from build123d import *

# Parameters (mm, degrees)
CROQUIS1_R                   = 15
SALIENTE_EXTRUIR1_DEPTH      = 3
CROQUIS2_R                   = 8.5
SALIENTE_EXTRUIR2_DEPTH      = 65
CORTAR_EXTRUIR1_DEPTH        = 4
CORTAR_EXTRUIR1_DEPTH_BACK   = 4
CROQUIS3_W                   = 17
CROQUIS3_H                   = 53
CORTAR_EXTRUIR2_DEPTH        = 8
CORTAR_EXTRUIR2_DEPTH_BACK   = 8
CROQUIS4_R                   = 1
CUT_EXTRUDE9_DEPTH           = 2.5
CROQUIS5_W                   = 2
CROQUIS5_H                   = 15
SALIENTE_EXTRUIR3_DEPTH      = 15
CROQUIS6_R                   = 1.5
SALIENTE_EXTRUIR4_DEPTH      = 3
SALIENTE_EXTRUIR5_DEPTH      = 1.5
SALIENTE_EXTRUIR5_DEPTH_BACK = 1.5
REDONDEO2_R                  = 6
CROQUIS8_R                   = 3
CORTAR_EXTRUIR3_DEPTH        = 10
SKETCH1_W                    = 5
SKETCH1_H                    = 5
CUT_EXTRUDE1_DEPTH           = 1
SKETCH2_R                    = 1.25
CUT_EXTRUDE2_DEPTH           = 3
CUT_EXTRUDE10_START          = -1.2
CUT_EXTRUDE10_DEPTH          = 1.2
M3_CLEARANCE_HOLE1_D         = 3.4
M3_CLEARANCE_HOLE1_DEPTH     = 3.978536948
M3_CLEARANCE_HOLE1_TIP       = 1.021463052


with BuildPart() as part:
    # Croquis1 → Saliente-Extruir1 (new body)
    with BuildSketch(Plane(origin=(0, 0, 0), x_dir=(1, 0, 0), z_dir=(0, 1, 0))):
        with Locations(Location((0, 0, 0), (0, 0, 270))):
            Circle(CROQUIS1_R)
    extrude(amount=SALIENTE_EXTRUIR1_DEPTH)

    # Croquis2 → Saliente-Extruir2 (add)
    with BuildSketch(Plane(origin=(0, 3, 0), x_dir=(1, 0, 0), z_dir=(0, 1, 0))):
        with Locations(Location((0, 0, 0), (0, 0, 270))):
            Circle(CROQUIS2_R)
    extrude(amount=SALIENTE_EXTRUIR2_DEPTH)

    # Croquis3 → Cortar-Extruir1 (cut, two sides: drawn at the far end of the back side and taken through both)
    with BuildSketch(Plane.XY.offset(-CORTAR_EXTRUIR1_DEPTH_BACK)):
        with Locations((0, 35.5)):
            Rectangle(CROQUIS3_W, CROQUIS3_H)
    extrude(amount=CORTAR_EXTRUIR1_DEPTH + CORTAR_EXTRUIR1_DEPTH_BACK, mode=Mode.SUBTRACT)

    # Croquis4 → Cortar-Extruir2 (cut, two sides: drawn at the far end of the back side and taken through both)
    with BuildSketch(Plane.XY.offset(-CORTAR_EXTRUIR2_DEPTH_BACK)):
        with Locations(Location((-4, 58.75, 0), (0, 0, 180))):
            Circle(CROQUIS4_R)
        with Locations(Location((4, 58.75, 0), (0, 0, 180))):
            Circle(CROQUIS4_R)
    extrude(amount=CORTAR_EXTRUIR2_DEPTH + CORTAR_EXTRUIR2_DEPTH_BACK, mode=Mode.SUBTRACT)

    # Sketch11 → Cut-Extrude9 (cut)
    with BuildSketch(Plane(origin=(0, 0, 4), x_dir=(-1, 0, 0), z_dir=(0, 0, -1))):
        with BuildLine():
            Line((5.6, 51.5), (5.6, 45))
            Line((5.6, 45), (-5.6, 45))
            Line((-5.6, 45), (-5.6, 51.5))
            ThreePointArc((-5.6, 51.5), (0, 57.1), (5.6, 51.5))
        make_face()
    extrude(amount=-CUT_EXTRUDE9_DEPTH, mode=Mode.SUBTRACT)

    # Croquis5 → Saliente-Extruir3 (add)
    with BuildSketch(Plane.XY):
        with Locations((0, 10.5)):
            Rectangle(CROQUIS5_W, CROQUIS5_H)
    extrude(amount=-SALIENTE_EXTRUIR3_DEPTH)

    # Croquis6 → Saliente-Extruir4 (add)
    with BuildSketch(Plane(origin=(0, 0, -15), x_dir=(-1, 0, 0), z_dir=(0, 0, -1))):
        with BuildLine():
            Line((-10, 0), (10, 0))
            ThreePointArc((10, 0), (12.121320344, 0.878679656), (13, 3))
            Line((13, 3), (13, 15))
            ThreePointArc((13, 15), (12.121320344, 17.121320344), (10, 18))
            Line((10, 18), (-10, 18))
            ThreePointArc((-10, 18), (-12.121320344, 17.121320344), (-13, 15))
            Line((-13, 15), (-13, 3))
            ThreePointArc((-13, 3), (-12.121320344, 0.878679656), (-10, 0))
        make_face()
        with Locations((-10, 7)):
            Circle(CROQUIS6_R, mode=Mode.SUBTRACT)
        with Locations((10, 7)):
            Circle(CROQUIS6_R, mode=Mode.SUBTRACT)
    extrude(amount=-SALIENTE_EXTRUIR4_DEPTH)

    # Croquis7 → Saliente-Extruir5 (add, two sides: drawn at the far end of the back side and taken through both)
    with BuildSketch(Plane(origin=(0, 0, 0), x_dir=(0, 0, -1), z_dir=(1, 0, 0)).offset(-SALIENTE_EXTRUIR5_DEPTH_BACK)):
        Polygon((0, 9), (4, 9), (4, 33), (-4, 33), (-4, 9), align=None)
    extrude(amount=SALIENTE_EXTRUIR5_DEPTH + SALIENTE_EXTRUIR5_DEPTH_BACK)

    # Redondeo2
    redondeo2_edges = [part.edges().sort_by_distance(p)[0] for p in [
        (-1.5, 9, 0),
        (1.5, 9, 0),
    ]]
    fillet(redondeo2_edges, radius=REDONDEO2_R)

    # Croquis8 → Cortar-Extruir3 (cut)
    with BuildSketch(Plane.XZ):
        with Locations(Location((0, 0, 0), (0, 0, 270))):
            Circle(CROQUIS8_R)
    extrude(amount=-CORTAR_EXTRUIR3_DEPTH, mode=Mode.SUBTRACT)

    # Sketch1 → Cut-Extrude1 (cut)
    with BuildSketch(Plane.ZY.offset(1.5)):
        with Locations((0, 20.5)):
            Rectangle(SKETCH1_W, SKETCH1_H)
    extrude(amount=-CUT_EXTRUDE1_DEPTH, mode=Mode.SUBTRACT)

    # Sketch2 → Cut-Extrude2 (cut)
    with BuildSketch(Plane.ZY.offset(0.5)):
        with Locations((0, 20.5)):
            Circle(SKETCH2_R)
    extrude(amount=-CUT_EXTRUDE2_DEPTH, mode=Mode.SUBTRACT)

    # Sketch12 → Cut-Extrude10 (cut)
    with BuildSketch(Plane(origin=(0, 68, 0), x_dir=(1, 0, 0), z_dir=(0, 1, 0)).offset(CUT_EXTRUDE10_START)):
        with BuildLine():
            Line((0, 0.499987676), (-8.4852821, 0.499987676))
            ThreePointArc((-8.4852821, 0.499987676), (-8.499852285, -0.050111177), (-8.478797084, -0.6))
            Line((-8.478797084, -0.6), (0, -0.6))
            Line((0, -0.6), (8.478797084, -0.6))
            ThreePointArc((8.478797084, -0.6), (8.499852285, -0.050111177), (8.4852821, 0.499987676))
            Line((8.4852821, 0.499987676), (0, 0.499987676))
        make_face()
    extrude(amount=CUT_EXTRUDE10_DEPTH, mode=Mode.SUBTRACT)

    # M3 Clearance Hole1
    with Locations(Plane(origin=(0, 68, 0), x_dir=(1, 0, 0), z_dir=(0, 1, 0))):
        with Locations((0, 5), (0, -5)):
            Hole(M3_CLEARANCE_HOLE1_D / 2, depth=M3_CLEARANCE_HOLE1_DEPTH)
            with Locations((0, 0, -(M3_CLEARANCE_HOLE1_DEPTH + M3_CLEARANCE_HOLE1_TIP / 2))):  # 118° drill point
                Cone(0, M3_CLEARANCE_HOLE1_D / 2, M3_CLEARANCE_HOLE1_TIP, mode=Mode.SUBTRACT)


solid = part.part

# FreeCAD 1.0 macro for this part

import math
import FreeCAD as App
import Part
import Sketcher


def edges_at(feature, points):
    """Names of the edges that pass closest to the given points."""
    edges = feature.Shape.Edges
    near = lambda p: min(range(len(edges)), key=lambda i: edges[i].distToShape(Part.Vertex(*p))[0])
    return sorted({f"Edge{near(p) + 1}" for p in points})

doc = App.newDocument("Part")
params = doc.addObject("Spreadsheet::Sheet", "Params")
for row, (alias, value) in enumerate([
    ("sketch1_diameter", "30 mm"),
    ("pad1_length", "3 mm"),
    ("sketch2_diameter", "17 mm"),
    ("pad2_length", "65 mm"),
    ("sketch3_width", "17 mm"),
    ("sketch3_height", "53 mm"),
    ("pocket1_length", "4 mm"),
    ("pocket1_length2", "4 mm"),
    ("sketch4_diameter", "2 mm"),
    ("sketch5_radius", "5.6 mm"),
    ("sketch5_height", "6.5 mm"),
    ("pocket3_length", "2.5 mm"),
    ("sketch6_width", "2 mm"),
    ("sketch6_height", "15 mm"),
    ("pad3_length", "15 mm"),
    ("sketch7_diameter", "3 mm"),
    ("sketch7_radius", "3 mm"),
    ("sketch7_width", "20 mm"),
    ("sketch7_height", "12 mm"),
    ("pad4_length", "3 mm"),
    ("sketch8_width", "24 mm"),
    ("sketch8_height", "8 mm"),
    ("pad5_length", "1.5 mm"),
    ("pad5_length2", "1.5 mm"),
    ("fillet_radius", "6 mm"),
    ("sketch9_diameter", "6 mm"),
    ("pocket4_length", "10 mm"),
    ("sketch10_width", "5 mm"),
    ("pocket5_length", "1 mm"),
    ("sketch11_diameter", "2.5 mm"),
    ("pocket6_length", "3 mm"),
    ("sketch12_radius", "8.5 mm"),
    ("pocket7_length", "1.2 mm"),
    ("sketch13_diameter", "3.4 mm"),
    ("hole_diameter", "3.4 mm"),
    ("hole_depth", "3.978537 mm"),
], start=1):
    params.set(f"A{row}", alias)
    params.set(f"B{row}", "=" + value)
    params.setAlias(f"B{row}", alias)

body = doc.addObject("PartDesign::Body", "Body")

# Sketch on XZ plane
sketch1 = body.newObject("Sketcher::SketchObject", "Sketch")
sketch1.AttachmentSupport = (doc.getObject("XZ_Plane"), [""])
sketch1.MapMode = "FlatFace"
sketch1.addGeometry(Part.Circle(App.Vector(0, 0, 0), App.Vector(0, 0, 1), 15), False)
sketch1.addConstraint(Sketcher.Constraint("Coincident", 0, 3, -1, 1))
sketch1.addConstraint(Sketcher.Constraint("Diameter", 0, 30.0))
sketch1.setExpression("Constraints[1]", "Params.sketch1_diameter")
pad1 = body.newObject("PartDesign::Pad", "Pad")
pad1.Profile = sketch1
pad1.setExpression("Length", "Params.pad1_length")
pad1.Reversed = True

# Sketch on XZ plane
sketch2 = body.newObject("Sketcher::SketchObject", "Sketch001")
sketch2.AttachmentSupport = (doc.getObject("XZ_Plane"), [""])
sketch2.MapMode = "FlatFace"
sketch2.AttachmentOffset = App.Placement(App.Vector(0, 0, -3), App.Rotation())
sketch2.addGeometry(Part.Circle(App.Vector(0, 0, 0), App.Vector(0, 0, 1), 8), False)
sketch2.addConstraint(Sketcher.Constraint("Coincident", 0, 3, -1, 1))
sketch2.addConstraint(Sketcher.Constraint("Diameter", 0, 17.0))
sketch2.setExpression("Constraints[1]", "Params.sketch2_diameter")
pad2 = body.newObject("PartDesign::Pad", "Pad001")
pad2.Profile = sketch2
pad2.setExpression("Length", "Params.pad2_length")
pad2.Reversed = True

# Sketch on XY plane
sketch3 = body.newObject("Sketcher::SketchObject", "Sketch002")
sketch3.AttachmentSupport = (doc.getObject("XY_Plane"), [""])
sketch3.MapMode = "FlatFace"
sketch3.addGeometry(Part.LineSegment(App.Vector(-8, 62, 0), App.Vector(-8, 9, 0)), False)
sketch3.addGeometry(Part.LineSegment(App.Vector(-8, 9, 0), App.Vector(8, 9, 0)), False)
sketch3.addGeometry(Part.LineSegment(App.Vector(8, 9, 0), App.Vector(8, 62, 0)), False)
sketch3.addGeometry(Part.LineSegment(App.Vector(8, 62, 0), App.Vector(-8, 62, 0)), False)
sketch3.addConstraint(Sketcher.Constraint("Coincident", 0, 2, 1, 1))
sketch3.addConstraint(Sketcher.Constraint("Coincident", 1, 2, 2, 1))
sketch3.addConstraint(Sketcher.Constraint("Coincident", 2, 2, 3, 1))
sketch3.addConstraint(Sketcher.Constraint("Coincident", 3, 2, 0, 1))
sketch3.addConstraint(Sketcher.Constraint("Vertical", 0))
sketch3.addConstraint(Sketcher.Constraint("Horizontal", 1))
sketch3.addConstraint(Sketcher.Constraint("Vertical", 2))
sketch3.addConstraint(Sketcher.Constraint("Horizontal", 3))
sketch3.addConstraint(Sketcher.Constraint("DistanceX", 1, 1, 1, 2, 17.0))
sketch3.addConstraint(Sketcher.Constraint("DistanceY", 0, 2, 0, 1, 53.0))
sketch3.addConstraint(Sketcher.Constraint("DistanceY", -1, 1, 0, 2, 9.0))
sketch3.addConstraint(Sketcher.Constraint("DistanceX", 0, 2, -1, 1, 8.5))
sketch3.setExpression("Constraints[8]", "Params.sketch3_width")
sketch3.setExpression("Constraints[9]", "Params.sketch3_height")
pocket1 = body.newObject("PartDesign::Pocket", "Pocket")
pocket1.Profile = sketch3
pocket1.Type = "TwoLengths"
pocket1.setExpression("Length", "Params.pocket1_length")
pocket1.setExpression("Length2", "Params.pocket1_length2")
pocket1.Reversed = True

# Sketch on XY plane
sketch4 = body.newObject("Sketcher::SketchObject", "Sketch003")
sketch4.AttachmentSupport = (doc.getObject("XY_Plane"), [""])
sketch4.MapMode = "FlatFace"
sketch4.addGeometry(Part.Circle(App.Vector(-4, 58.8, 0), App.Vector(0, 0, 1), 1), False)
sketch4.addGeometry(Part.Circle(App.Vector(4, 58.8, 0), App.Vector(0, 0, 1), 1), False)
sketch4.addConstraint(Sketcher.Constraint("Equal", 0, 1))
sketch4.addConstraint(Sketcher.Constraint("Symmetric", 0, 3, 1, 3, -2))
sketch4.addConstraint(Sketcher.Constraint("Diameter", 0, 2.0))
sketch4.addConstraint(Sketcher.Constraint("DistanceX", 0, 3, -1, 1, 4.0))
sketch4.addConstraint(Sketcher.Constraint("DistanceY", -1, 1, 0, 3, 58.75))
sketch4.setExpression("Constraints[2]", "Params.sketch4_diameter")
pocket2 = body.newObject("PartDesign::Pocket", "Pocket001")
pocket2.Profile = sketch4
pocket2.Type = "ThroughAll"
pocket2.Midplane = True

# Sketch on XY plane
sketch5 = body.newObject("Sketcher::SketchObject", "Sketch004")
sketch5.AttachmentSupport = (doc.getObject("XY_Plane"), [""])
sketch5.MapMode = "FlatFace"
sketch5.AttachmentOffset = App.Placement(App.Vector(0, 0, 4), App.Rotation())
sketch5.addGeometry(Part.LineSegment(App.Vector(-6, 45, 0), App.Vector(-6, 52, 0)), False)
sketch5.addGeometry(Part.ArcOfCircle(Part.Circle(App.Vector(0, 52, 0), App.Vector(0, 0, 1), 6), math.radians(0), math.radians(180)), False)
sketch5.addGeometry(Part.LineSegment(App.Vector(6, 52, 0), App.Vector(6, 45, 0)), False)
sketch5.addGeometry(Part.LineSegment(App.Vector(6, 45, 0), App.Vector(-6, 45, 0)), False)
sketch5.addConstraint(Sketcher.Constraint("Tangent", 0, 2, 1, 2))
sketch5.addConstraint(Sketcher.Constraint("Tangent", 1, 1, 2, 1))
sketch5.addConstraint(Sketcher.Constraint("Coincident", 2, 2, 3, 1))
sketch5.addConstraint(Sketcher.Constraint("Coincident", 3, 2, 0, 1))
sketch5.addConstraint(Sketcher.Constraint("Vertical", 0))
sketch5.addConstraint(Sketcher.Constraint("Vertical", 2))
sketch5.addConstraint(Sketcher.Constraint("Horizontal", 3))
sketch5.addConstraint(Sketcher.Constraint("PointOnObject", 1, 3, -2))
sketch5.addConstraint(Sketcher.Constraint("Radius", 1, 5.6))
sketch5.addConstraint(Sketcher.Constraint("DistanceY", 0, 1, 0, 2, 6.5))
sketch5.addConstraint(Sketcher.Constraint("DistanceY", -1, 1, 2, 2, 45.0))
sketch5.setExpression("Constraints[8]", "Params.sketch5_radius")
sketch5.setExpression("Constraints[9]", "Params.sketch5_height")
pocket3 = body.newObject("PartDesign::Pocket", "Pocket002")
pocket3.Profile = sketch5
pocket3.setExpression("Length", "Params.pocket3_length")
pocket3.Reversed = True

# Sketch on XY plane
sketch6 = body.newObject("Sketcher::SketchObject", "Sketch005")
sketch6.AttachmentSupport = (doc.getObject("XY_Plane"), [""])
sketch6.MapMode = "FlatFace"
sketch6.addGeometry(Part.LineSegment(App.Vector(-1, 18, 0), App.Vector(-1, 3, 0)), False)
sketch6.addGeometry(Part.LineSegment(App.Vector(-1, 3, 0), App.Vector(1, 3, 0)), False)
sketch6.addGeometry(Part.LineSegment(App.Vector(1, 3, 0), App.Vector(1, 18, 0)), False)
sketch6.addGeometry(Part.LineSegment(App.Vector(1, 18, 0), App.Vector(-1, 18, 0)), False)
sketch6.addConstraint(Sketcher.Constraint("Coincident", 0, 2, 1, 1))
sketch6.addConstraint(Sketcher.Constraint("Coincident", 1, 2, 2, 1))
sketch6.addConstraint(Sketcher.Constraint("Coincident", 2, 2, 3, 1))
sketch6.addConstraint(Sketcher.Constraint("Coincident", 3, 2, 0, 1))
sketch6.addConstraint(Sketcher.Constraint("Vertical", 0))
sketch6.addConstraint(Sketcher.Constraint("Horizontal", 1))
sketch6.addConstraint(Sketcher.Constraint("Vertical", 2))
sketch6.addConstraint(Sketcher.Constraint("Horizontal", 3))
sketch6.addConstraint(Sketcher.Constraint("DistanceX", 1, 1, 1, 2, 2.0))
sketch6.addConstraint(Sketcher.Constraint("DistanceY", 0, 2, 0, 1, 15.0))
sketch6.addConstraint(Sketcher.Constraint("DistanceX", 0, 2, -1, 1, 1.0))
sketch6.addConstraint(Sketcher.Constraint("DistanceY", -1, 1, 0, 2, 3.0))
sketch6.setExpression("Constraints[8]", "Params.sketch6_width")
sketch6.setExpression("Constraints[9]", "Params.sketch6_height")
pad3 = body.newObject("PartDesign::Pad", "Pad002")
pad3.Profile = sketch6
pad3.setExpression("Length", "Params.pad3_length")
pad3.Reversed = True

# Sketch on XY plane
sketch7 = body.newObject("Sketcher::SketchObject", "Sketch006")
sketch7.AttachmentSupport = (doc.getObject("XY_Plane"), [""])
sketch7.MapMode = "FlatFace"
sketch7.AttachmentOffset = App.Placement(App.Vector(0, 0, -15), App.Rotation())
sketch7.addGeometry(Part.LineSegment(App.Vector(10, 0, 0), App.Vector(-10, 0, 0)), False)
sketch7.addGeometry(Part.ArcOfCircle(Part.Circle(App.Vector(-10, 3, 0), App.Vector(0, 0, 1), 3), math.radians(180), math.radians(270)), False)
sketch7.addGeometry(Part.LineSegment(App.Vector(-13, 3, 0), App.Vector(-13, 15, 0)), False)
sketch7.addGeometry(Part.ArcOfCircle(Part.Circle(App.Vector(-10, 15, 0), App.Vector(0, 0, 1), 3), math.radians(90), math.radians(180)), False)
sketch7.addGeometry(Part.LineSegment(App.Vector(-10, 18, 0), App.Vector(10, 18, 0)), False)
sketch7.addGeometry(Part.ArcOfCircle(Part.Circle(App.Vector(10, 15, 0), App.Vector(0, 0, 1), 3), math.radians(0), math.radians(90)), False)
sketch7.addGeometry(Part.LineSegment(App.Vector(13, 15, 0), App.Vector(13, 3, 0)), False)
sketch7.addGeometry(Part.ArcOfCircle(Part.Circle(App.Vector(10, 3, 0), App.Vector(0, 0, 1), 3), math.radians(-90), math.radians(0)), False)
sketch7.addGeometry(Part.Circle(App.Vector(10, 7, 0), App.Vector(0, 0, 1), 1.5), False)
sketch7.addGeometry(Part.Circle(App.Vector(-10, 7, 0), App.Vector(0, 0, 1), 1.5), False)
sketch7.addConstraint(Sketcher.Constraint("Tangent", 0, 2, 1, 2))
sketch7.addConstraint(Sketcher.Constraint("Tangent", 1, 1, 2, 1))
sketch7.addConstraint(Sketcher.Constraint("Tangent", 2, 2, 3, 2))
sketch7.addConstraint(Sketcher.Constraint("Tangent", 3, 1, 4, 1))
sketch7.addConstraint(Sketcher.Constraint("Tangent", 4, 2, 5, 2))
sketch7.addConstraint(Sketcher.Constraint("Tangent", 5, 1, 6, 1))
sketch7.addConstraint(Sketcher.Constraint("Tangent", 6, 2, 7, 2))
sketch7.addConstraint(Sketcher.Constraint("Tangent", 7, 1, 0, 1))
sketch7.addConstraint(Sketcher.Constraint("Horizontal", 0))
sketch7.addConstraint(Sketcher.Constraint("Vertical", 2))
sketch7.addConstraint(Sketcher.Constraint("Horizontal", 4))
sketch7.addConstraint(Sketcher.Constraint("Vertical", 6))
sketch7.addConstraint(Sketcher.Constraint("Equal", 1, 3))
sketch7.addConstraint(Sketcher.Constraint("Equal", 3, 5))
sketch7.addConstraint(Sketcher.Constraint("Equal", 5, 7))
sketch7.addConstraint(Sketcher.Constraint("Equal", 8, 9))
sketch7.addConstraint(Sketcher.Constraint("Symmetric", 0, 2, 7, 1, -1, 1))
sketch7.addConstraint(Sketcher.Constraint("Symmetric", 8, 3, 9, 3, -2))
sketch7.addConstraint(Sketcher.Constraint("Vertical", 7, 3, 8, 3))
sketch7.addConstraint(Sketcher.Constraint("Diameter", 8, 3.0))
sketch7.addConstraint(Sketcher.Constraint("Radius", 1, 3.0))
sketch7.addConstraint(Sketcher.Constraint("DistanceX", 0, 2, 0, 1, 20.0))
sketch7.addConstraint(Sketcher.Constraint("DistanceY", 2, 1, 2, 2, 12.0))
sketch7.addConstraint(Sketcher.Constraint("DistanceY", -1, 1, 8, 3, 7.0))
sketch7.setExpression("Constraints[19]", "Params.sketch7_diameter")
sketch7.setExpression("Constraints[20]", "Params.sketch7_radius")
sketch7.setExpression("Constraints[21]", "Params.sketch7_width")
sketch7.setExpression("Constraints[22]", "Params.sketch7_height")
pad4 = body.newObject("PartDesign::Pad", "Pad003")
pad4.Profile = sketch7
pad4.setExpression("Length", "Params.pad4_length")

# Sketch on YZ plane
sketch8 = body.newObject("Sketcher::SketchObject", "Sketch007")
sketch8.AttachmentSupport = (doc.getObject("YZ_Plane"), [""])
sketch8.MapMode = "FlatFace"
sketch8.addGeometry(Part.LineSegment(App.Vector(9, -4, 0), App.Vector(33, -4, 0)), False)
sketch8.addGeometry(Part.LineSegment(App.Vector(33, -4, 0), App.Vector(33, 4, 0)), False)
sketch8.addGeometry(Part.LineSegment(App.Vector(33, 4, 0), App.Vector(9, 4, 0)), False)
sketch8.addGeometry(Part.LineSegment(App.Vector(9, 4, 0), App.Vector(9, -4, 0)), False)
sketch8.addConstraint(Sketcher.Constraint("Coincident", 0, 2, 1, 1))
sketch8.addConstraint(Sketcher.Constraint("Coincident", 1, 2, 2, 1))
sketch8.addConstraint(Sketcher.Constraint("Coincident", 2, 2, 3, 1))
sketch8.addConstraint(Sketcher.Constraint("Coincident", 3, 2, 0, 1))
sketch8.addConstraint(Sketcher.Constraint("Horizontal", 0))
sketch8.addConstraint(Sketcher.Constraint("Vertical", 1))
sketch8.addConstraint(Sketcher.Constraint("Horizontal", 2))
sketch8.addConstraint(Sketcher.Constraint("Vertical", 3))
sketch8.addConstraint(Sketcher.Constraint("DistanceX", 0, 1, 0, 2, 24.0))
sketch8.addConstraint(Sketcher.Constraint("DistanceY", 1, 1, 1, 2, 8.0))
sketch8.addConstraint(Sketcher.Constraint("DistanceX", -1, 1, 0, 2, 33.0))
sketch8.addConstraint(Sketcher.Constraint("DistanceY", 0, 2, -1, 1, 4.0))
sketch8.setExpression("Constraints[8]", "Params.sketch8_width")
sketch8.setExpression("Constraints[9]", "Params.sketch8_height")
pad5 = body.newObject("PartDesign::Pad", "Pad004")
pad5.Profile = sketch8
pad5.Type = "TwoLengths"
pad5.setExpression("Length", "Params.pad5_length")
pad5.setExpression("Length2", "Params.pad5_length2")
doc.recompute()

fillet = body.newObject("PartDesign::Fillet", "Fillet")
fillet.Base = (pad5, edges_at(pad5, [(-1.5, 9, 0), (1.5, 9, 0)]))
fillet.setExpression("Radius", "Params.fillet_radius")

# Sketch on XZ plane
sketch9 = body.newObject("Sketcher::SketchObject", "Sketch008")
sketch9.AttachmentSupport = (doc.getObject("XZ_Plane"), [""])
sketch9.MapMode = "FlatFace"
sketch9.addGeometry(Part.Circle(App.Vector(0, 0, 0), App.Vector(0, 0, 1), 3), False)
sketch9.addConstraint(Sketcher.Constraint("Coincident", 0, 3, -1, 1))
sketch9.addConstraint(Sketcher.Constraint("Diameter", 0, 6.0))
sketch9.setExpression("Constraints[1]", "Params.sketch9_diameter")
pocket4 = body.newObject("PartDesign::Pocket", "Pocket003")
pocket4.Profile = sketch9
pocket4.setExpression("Length", "Params.pocket4_length")

# Sketch on YZ plane
sketch10 = body.newObject("Sketcher::SketchObject", "Sketch009")
sketch10.AttachmentSupport = (doc.getObject("YZ_Plane"), [""])
sketch10.MapMode = "FlatFace"
sketch10.AttachmentOffset = App.Placement(App.Vector(0, 0, -1.5), App.Rotation())
sketch10.addGeometry(Part.LineSegment(App.Vector(23, -2, 0), App.Vector(18, -2, 0)), False)
sketch10.addGeometry(Part.LineSegment(App.Vector(18, -2, 0), App.Vector(18, 2, 0)), False)
sketch10.addGeometry(Part.LineSegment(App.Vector(18, 2, 0), App.Vector(23, 2, 0)), False)
sketch10.addGeometry(Part.LineSegment(App.Vector(23, 2, 0), App.Vector(23, -2, 0)), False)
sketch10.addConstraint(Sketcher.Constraint("Coincident", 0, 2, 1, 1))
sketch10.addConstraint(Sketcher.Constraint("Coincident", 1, 2, 2, 1))
sketch10.addConstraint(Sketcher.Constraint("Coincident", 2, 2, 3, 1))
sketch10.addConstraint(Sketcher.Constraint("Coincident", 3, 2, 0, 1))
sketch10.addConstraint(Sketcher.Constraint("Horizontal", 0))
sketch10.addConstraint(Sketcher.Constraint("Vertical", 1))
sketch10.addConstraint(Sketcher.Constraint("Horizontal", 2))
sketch10.addConstraint(Sketcher.Constraint("Vertical", 3))
sketch10.addConstraint(Sketcher.Constraint("Equal", 2, 1))
sketch10.addConstraint(Sketcher.Constraint("DistanceX", 0, 2, 0, 1, 5.0))
sketch10.addConstraint(Sketcher.Constraint("DistanceX", -1, 1, 0, 2, 18.0))
sketch10.addConstraint(Sketcher.Constraint("DistanceY", 0, 2, -1, 1, 2.5))
sketch10.setExpression("Constraints[9]", "Params.sketch10_width")
pocket5 = body.newObject("PartDesign::Pocket", "Pocket004")
pocket5.Profile = sketch10
pocket5.setExpression("Length", "Params.pocket5_length")
pocket5.Reversed = True

# Sketch on YZ plane
sketch11 = body.newObject("Sketcher::SketchObject", "Sketch010")
sketch11.AttachmentSupport = (doc.getObject("YZ_Plane"), [""])
sketch11.MapMode = "FlatFace"
sketch11.AttachmentOffset = App.Placement(App.Vector(0, 0, -0.5), App.Rotation())
sketch11.addGeometry(Part.Circle(App.Vector(20.5, 0, 0), App.Vector(0, 0, 1), 1.2), False)
sketch11.addConstraint(Sketcher.Constraint("PointOnObject", 0, 3, -1))
sketch11.addConstraint(Sketcher.Constraint("Diameter", 0, 2.5))
sketch11.addConstraint(Sketcher.Constraint("DistanceX", -1, 1, 0, 3, 20.5))
sketch11.setExpression("Constraints[1]", "Params.sketch11_diameter")
pocket6 = body.newObject("PartDesign::Pocket", "Pocket005")
pocket6.Profile = sketch11
pocket6.setExpression("Length", "Params.pocket6_length")
pocket6.Reversed = True

# Sketch on XZ plane
sketch12 = body.newObject("Sketcher::SketchObject", "Sketch011")
sketch12.AttachmentSupport = (doc.getObject("XZ_Plane"), [""])
sketch12.MapMode = "FlatFace"
sketch12.AttachmentOffset = App.Placement(App.Vector(0, 0, -66.8), App.Rotation())
sketch12.addGeometry(Part.ArcOfCircle(Part.Circle(App.Vector(0, 0, 0), App.Vector(0, 0, 1), 8.5), math.radians(175.95), math.radians(183.37)), False)
sketch12.addGeometry(Part.LineSegment(App.Vector(-8.5, 0.6, 0), App.Vector(8.5, 0.6, 0)), False)
sketch12.addGeometry(Part.ArcOfCircle(Part.Circle(App.Vector(0, 0, 0), App.Vector(0, 0, 1), 8.5), math.radians(-3.37), math.radians(4.05)), False)
sketch12.addGeometry(Part.LineSegment(App.Vector(8.5, -0.5, 0), App.Vector(-8.5, -0.5, 0)), False)
sketch12.addConstraint(Sketcher.Constraint("Coincident", 0, 1, 1, 1))
sketch12.addConstraint(Sketcher.Constraint("Coincident", 1, 2, 2, 2))
sketch12.addConstraint(Sketcher.Constraint("Coincident", 2, 1, 3, 1))
sketch12.addConstraint(Sketcher.Constraint("Coincident", 3, 2, 0, 2))
sketch12.addConstraint(Sketcher.Constraint("Horizontal", 1))
sketch12.addConstraint(Sketcher.Constraint("Horizontal", 3))
sketch12.addConstraint(Sketcher.Constraint("Coincident", 0, 3, -1, 1))
sketch12.addConstraint(Sketcher.Constraint("Coincident", 2, 3, -1, 1))
sketch12.addConstraint(Sketcher.Constraint("Equal", 0, 2))
sketch12.addConstraint(Sketcher.Constraint("Radius", 0, 8.5))
sketch12.addConstraint(Sketcher.Constraint("DistanceY", -1, 1, 0, 1, 0.6))
sketch12.addConstraint(Sketcher.Constraint("DistanceX", 3, 2, 3, 1, 16.970564))
sketch12.setExpression("Constraints[9]", "Params.sketch12_radius")
pocket7 = body.newObject("PartDesign::Pocket", "Pocket006")
pocket7.Profile = sketch12
pocket7.setExpression("Length", "Params.pocket7_length")

# Sketch on XZ plane
sketch13 = body.newObject("Sketcher::SketchObject", "Sketch012")
sketch13.AttachmentSupport = (doc.getObject("XZ_Plane"), [""])
sketch13.MapMode = "FlatFace"
sketch13.AttachmentOffset = App.Placement(App.Vector(0, 0, -68), App.Rotation())
sketch13.addGeometry(Part.Circle(App.Vector(0, -5, 0), App.Vector(0, 0, 1), 1.7), False)
sketch13.addGeometry(Part.Circle(App.Vector(0, 5, 0), App.Vector(0, 0, 1), 1.7), False)
sketch13.addConstraint(Sketcher.Constraint("Equal", 0, 1))
sketch13.addConstraint(Sketcher.Constraint("Symmetric", 0, 3, 1, 3, -1, 1))
sketch13.addConstraint(Sketcher.Constraint("PointOnObject", 0, 3, -2))
sketch13.addConstraint(Sketcher.Constraint("Diameter", 0, 3.4))
sketch13.addConstraint(Sketcher.Constraint("DistanceY", 0, 3, -1, 1, 5.0))
sketch13.setExpression("Constraints[3]", "Params.sketch13_diameter")
doc.recompute()
hole = body.newObject("PartDesign::Hole", "Hole")
hole.Profile = sketch13
hole.ThreadType = "None"
hole.setExpression("Diameter", "Params.hole_diameter")
hole.DepthType = "Dimension"
hole.setExpression("Depth", "Params.hole_depth")
hole.DrillPoint = "Angled"
hole.DrillPointAngle = 118
hole.Reversed = True

doc.recompute()
